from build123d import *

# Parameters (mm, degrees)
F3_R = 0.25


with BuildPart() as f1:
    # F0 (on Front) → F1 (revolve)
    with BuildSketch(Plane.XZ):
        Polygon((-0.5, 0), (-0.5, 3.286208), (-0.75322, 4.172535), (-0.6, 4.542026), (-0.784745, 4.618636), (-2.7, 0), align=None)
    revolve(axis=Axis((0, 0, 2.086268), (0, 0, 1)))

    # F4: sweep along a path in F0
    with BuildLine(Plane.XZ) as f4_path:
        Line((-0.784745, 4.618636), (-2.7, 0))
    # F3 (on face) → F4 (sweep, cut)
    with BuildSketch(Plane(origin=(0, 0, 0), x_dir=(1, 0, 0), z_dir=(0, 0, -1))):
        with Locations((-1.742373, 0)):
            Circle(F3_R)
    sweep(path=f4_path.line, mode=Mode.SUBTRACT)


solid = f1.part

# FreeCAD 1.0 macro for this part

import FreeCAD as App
import Part
import Sketcher
Q = App.Units.Quantity


def add_polygon(sketch, points):
    """Adds a closed chain of lines whose ends are joined by coincident constraints."""
    first, n = sketch.GeometryCount, len(points)
    for a, b in zip(points, points[1:] + points[:1]):
        sketch.addGeometry(Part.LineSegment(App.Vector(*a, 0), App.Vector(*b, 0)), False)
    for i in range(n):
        sketch.addConstraint(Sketcher.Constraint("Coincident", first + i, 2, first + (i + 1) % n, 1))

doc = App.newDocument("Part")
params = doc.addObject("Spreadsheet::Sheet", "Params")
for row, (alias, value) in enumerate([
    ("sketch1_length", "5 mm"),
    ("sketch1_width", "2.2 mm"),
    ("sketch1_length2", "0.4 mm"),
    ("sketch1_length3", "0.2 mm"),
    ("revolution_angle", "360 deg"),
    ("sketch2_diameter", "0.5 mm"),
    ("sketch3_width", "5 mm"),
], start=1):
    params.set(f"A{row}", alias)
    params.set(f"B{row}", "=" + value)
    params.setAlias(f"B{row}", alias)

body = doc.addObject("PartDesign::Body", "Body")

# Sketch on XZ plane
sketch1 = body.newObject("Sketcher::SketchObject", "Sketch")
sketch1.AttachmentSupport = (doc.getObject("XZ_Plane"), [""])
sketch1.MapMode = "FlatFace"
add_polygon(sketch1, [(-0.5, 0), (-0.5, 3.29), (-0.75, 4.17), (-0.6, 4.54), (-0.78, 4.62), (-2.7, 0)])  # lines 0-5
sketch1.addConstraint(Sketcher.Constraint("Vertical", 0))
sketch1.addConstraint(Sketcher.Constraint("Horizontal", 5))
sketch1.addConstraint(Sketcher.Constraint("PointOnObject", 4, 2, -1))
sketch1.addConstraint(Sketcher.Constraint("Perpendicular", 2, 3))
sketch1.addConstraint(Sketcher.Constraint("Perpendicular", 3, 4))
sketch1.addConstraint(Sketcher.Constraint("Distance", 4, Q("5 mm")))
sketch1.addConstraint(Sketcher.Constraint("DistanceX", 5, 1, 5, 2, Q("2.2 mm")))
sketch1.addConstraint(Sketcher.Constraint("Distance", 2, Q("0.4 mm")))
sketch1.addConstraint(Sketcher.Constraint("Distance", 3, Q("0.2 mm")))
sketch1.addConstraint(Sketcher.Constraint("DistanceX", 0, 2, -1, 1, Q("0.5 mm")))
sketch1.addConstraint(Sketcher.Constraint("DistanceX", 2, 2, -1, 1, Q("0.6 mm")))
sketch1.addConstraint(Sketcher.Constraint("Distance", 1, Q("0.92179 mm")))
sketch1.setExpression("Constraints[11]", "Params.sketch1_length")
sketch1.setExpression("Constraints[12]", "Params.sketch1_width")
sketch1.setExpression("Constraints[13]", "Params.sketch1_length2")
sketch1.setExpression("Constraints[14]", "Params.sketch1_length3")
revolution = body.newObject("PartDesign::Revolution", "Revolution")
revolution.Profile = sketch1
revolution.ReferenceAxis = (sketch1, ["V_Axis"])
revolution.setExpression("Angle", "Params.revolution_angle")

# Sketch on XY plane
sketch2 = body.newObject("Sketcher::SketchObject", "Sketch001")
sketch2.AttachmentSupport = (doc.getObject("XY_Plane"), [""])
sketch2.MapMode = "FlatFace"
sketch2.addGeometry(Part.Circle(App.Vector(-1.74, 0, 0), App.Vector(0, 0, 1), 0.25), False)
sketch2.addConstraint(Sketcher.Constraint("PointOnObject", 0, 3, -1))
sketch2.addConstraint(Sketcher.Constraint("Diameter", 0, Q("0.5 mm")))
sketch2.addConstraint(Sketcher.Constraint("DistanceX", 0, 3, -1, 1, Q("1.742373 mm")))
sketch2.setExpression("Constraints[1]", "Params.sketch2_diameter")

# Sketch on an angled plane
sketch3 = body.newObject("Sketcher::SketchObject", "Sketch002")
sketch3.Placement = App.Placement(App.Vector(-2.303834, 0, 0.955353), App.Rotation(App.Vector(-0.383050998, 0, -0.923727196), App.Vector(0, 1, 0), App.Vector(0.923727196, 0, -0.383050998), "ZXY"))
sketch3.addGeometry(Part.LineSegment(App.Vector(-4, 0, 0), App.Vector(1, 0, 0)), False)
sketch3.addConstraint(Sketcher.Constraint("Horizontal", 0))
sketch3.addConstraint(Sketcher.Constraint("PointOnObject", 0, 1, -1))
sketch3.addConstraint(Sketcher.Constraint("DistanceX", 0, 1, 0, 2, Q("5 mm")))
sketch3.addConstraint(Sketcher.Constraint("DistanceX", 0, 1, -1, 1, Q("3.965762 mm")))
sketch3.setExpression("Constraints[2]", "Params.sketch3_width")
doc.recompute()

subtractivepipe = body.newObject("PartDesign::SubtractivePipe", "SubtractivePipe")
subtractivepipe.Profile = sketch2
subtractivepipe.Spine = (sketch3, ["Edge1"])

doc.recompute()
